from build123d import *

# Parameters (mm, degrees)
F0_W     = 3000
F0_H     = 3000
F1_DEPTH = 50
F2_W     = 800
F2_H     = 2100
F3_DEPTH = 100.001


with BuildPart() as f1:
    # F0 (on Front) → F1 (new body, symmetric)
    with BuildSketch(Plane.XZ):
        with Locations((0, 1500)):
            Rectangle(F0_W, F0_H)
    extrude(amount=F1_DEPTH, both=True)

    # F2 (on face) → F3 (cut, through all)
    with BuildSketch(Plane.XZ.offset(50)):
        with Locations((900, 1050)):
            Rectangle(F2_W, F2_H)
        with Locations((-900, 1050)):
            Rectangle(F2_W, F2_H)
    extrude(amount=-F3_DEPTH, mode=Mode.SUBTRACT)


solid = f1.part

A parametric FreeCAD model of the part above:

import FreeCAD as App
import Part
import Sketcher

V = App.Vector
Q = App.Units.Quantity

doc = App.newDocument("Part")
body = doc.addObject("PartDesign::Body", "Body")

# Sketch on XZ plane
sketch1 = body.newObject("Sketcher::SketchObject", "Sketch")
sketch1.AttachmentSupport = (doc.getObject("XZ_Plane"), [""])
sketch1.MapMode = "FlatFace"
sketch1.addGeometry(Part.LineSegment(V(-1500, 3000, 0), V(-1500, 0, 0)), False)
sketch1.addGeometry(Part.LineSegment(V(-1500, 0, 0), V(1500, 0, 0)), False)
sketch1.addGeometry(Part.LineSegment(V(1500, 0, 0), V(1500, 3000, 0)), False)
sketch1.addGeometry(Part.LineSegment(V(1500, 3000, 0), V(-1500, 3000, 0)), False)
sketch1.addConstraint(Sketcher.Constraint("Coincident", 0, 2, 1, 1))
sketch1.addConstraint(Sketcher.Constraint("Coincident", 1, 2, 2, 1))
sketch1.addConstraint(Sketcher.Constraint("Coincident", 2, 2, 3, 1))
sketch1.addConstraint(Sketcher.Constraint("Coincident", 3, 2, 0, 1))
sketch1.addConstraint(Sketcher.Constraint("Vertical", 0))
sketch1.addConstraint(Sketcher.Constraint("Horizontal", 1))
sketch1.addConstraint(Sketcher.Constraint("Vertical", 2))
sketch1.addConstraint(Sketcher.Constraint("Horizontal", 3))
sketch1.addConstraint(Sketcher.Constraint("Symmetric", 0, 2, 1, 2, -1, 1))
sketch1.addConstraint(Sketcher.Constraint("Equal", 3, 0))
sketch1.addConstraint(Sketcher.Constraint("DistanceX", 1, 1, 1, 2, Q("3000 mm")))
pad1 = body.newObject("PartDesign::Pad", "Pad")
pad1.Profile = sketch1
pad1.Length = 100
pad1.Midplane = True

# Sketch on XZ plane
sketch2 = body.newObject("Sketcher::SketchObject", "Sketch001")
sketch2.AttachmentSupport = (doc.getObject("XZ_Plane"), [""])
sketch2.MapMode = "FlatFace"
sketch2.AttachmentOffset = App.Placement(V(0, 0, 50), App.Rotation())
sketch2.addGeometry(Part.LineSegment(V(500, 2100, 0), V(500, 0, 0)), False)
sketch2.addGeometry(Part.LineSegment(V(500, 0, 0), V(1300, 0, 0)), False)
sketch2.addGeometry(Part.LineSegment(V(1300, 0, 0), V(1300, 2100, 0)), False)
sketch2.addGeometry(Part.LineSegment(V(1300, 2100, 0), V(500, 2100, 0)), False)
sketch2.addGeometry(Part.LineSegment(V(-1300, 2100, 0), V(-1300, 0, 0)), False)
sketch2.addGeometry(Part.LineSegment(V(-1300, 0, 0), V(-500, 0, 0)), False)
sketch2.addGeometry(Part.LineSegment(V(-500, 0, 0), V(-500, 2100, 0)), False)
sketch2.addGeometry(Part.LineSegment(V(-500, 2100, 0), V(-1300, 2100, 0)), False)
sketch2.addConstraint(Sketcher.Constraint("Coincident", 0, 2, 1, 1))
sketch2.addConstraint(Sketcher.Constraint("Coincident", 1, 2, 2, 1))
sketch2.addConstraint(Sketcher.Constraint("Coincident", 2, 2, 3, 1))
sketch2.addConstraint(Sketcher.Constraint("Coincident", 3, 2, 0, 1))
sketch2.addConstraint(Sketcher.Constraint("Coincident", 4, 2, 5, 1))
sketch2.addConstraint(Sketcher.Constraint("Coincident", 5, 2, 6, 1))
sketch2.addConstraint(Sketcher.Constraint("Coincident", 6, 2, 7, 1))
sketch2.addConstraint(Sketcher.Constraint("Coincident", 7, 2, 4, 1))
sketch2.addConstraint(Sketcher.Constraint("Vertical", 0))
sketch2.addConstraint(Sketcher.Constraint("Horizontal", 1))
sketch2.addConstraint(Sketcher.Constraint("Vertical", 2))
sketch2.addConstraint(Sketcher.Constraint("Horizontal", 3))
sketch2.addConstraint(Sketcher.Constraint("Vertical", 4))
sketch2.addConstraint(Sketcher.Constraint("Horizontal", 5))
sketch2.addConstraint(Sketcher.Constraint("Vertical", 6))
sketch2.addConstraint(Sketcher.Constraint("Horizontal", 7))
sketch2.addConstraint(Sketcher.Constraint("Symmetric", 1, 2, 4, 2, -1, 1))
sketch2.addConstraint(Sketcher.Constraint("Symmetric", 0, 2, 5, 2, -2))
sketch2.addConstraint(Sketcher.Constraint("Horizontal", 3, 2, 6, 2))
sketch2.addConstraint(Sketcher.Constraint("DistanceX", 1, 1, 1, 2, Q("800 mm")))
sketch2.addConstraint(Sketcher.Constraint("DistanceY", 0, 2, 0, 1, Q("2100 mm")))
sketch2.addConstraint(Sketcher.Constraint("DistanceX", -1, 1, 0, 2, Q("500 mm")))
pocket1 = body.newObject("PartDesign::Pocket", "Pocket")
pocket1.Profile = sketch2
pocket1.Type = "ThroughAll"

doc.recompute()
